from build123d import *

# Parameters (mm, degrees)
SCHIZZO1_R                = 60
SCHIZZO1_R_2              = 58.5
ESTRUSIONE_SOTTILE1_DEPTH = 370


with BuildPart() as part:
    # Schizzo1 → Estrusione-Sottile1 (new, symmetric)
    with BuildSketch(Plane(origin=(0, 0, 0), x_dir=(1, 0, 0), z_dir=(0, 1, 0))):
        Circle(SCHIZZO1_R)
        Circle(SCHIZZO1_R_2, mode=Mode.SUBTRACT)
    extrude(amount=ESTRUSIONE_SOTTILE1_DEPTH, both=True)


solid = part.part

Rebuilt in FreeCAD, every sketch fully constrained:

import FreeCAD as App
import Part
import Sketcher

V = App.Vector

doc = App.newDocument("Part")
body = doc.addObject("PartDesign::Body", "Body")

sketch1 = body.newObject("Sketcher::SketchObject", "Sketch")
sketch1.AttachmentSupport = (doc.getObject("XZ_Plane"), [""])
sketch1.MapMode = "FlatFace"
sketch1.addGeometry([
    Part.Circle(V(0, 0, 0), V(0, 0, 1), 60),
    Part.Circle(V(0, 0, 0), V(0, 0, 1), 58),
], False)
sketch1.addConstraint([
    Sketcher.Constraint("Coincident", 0, 3, -1, 1),
    Sketcher.Constraint("Coincident", 1, 3, -1, 1),
    Sketcher.Constraint("Diameter", 0, 120.0),
    Sketcher.Constraint("Diameter", 1, 117.0),
])
pad1 = body.newObject("PartDesign::Pad", "Pad")
pad1.Profile = sketch1
pad1.Length = 740
pad1.Midplane = True

doc.recompute()
